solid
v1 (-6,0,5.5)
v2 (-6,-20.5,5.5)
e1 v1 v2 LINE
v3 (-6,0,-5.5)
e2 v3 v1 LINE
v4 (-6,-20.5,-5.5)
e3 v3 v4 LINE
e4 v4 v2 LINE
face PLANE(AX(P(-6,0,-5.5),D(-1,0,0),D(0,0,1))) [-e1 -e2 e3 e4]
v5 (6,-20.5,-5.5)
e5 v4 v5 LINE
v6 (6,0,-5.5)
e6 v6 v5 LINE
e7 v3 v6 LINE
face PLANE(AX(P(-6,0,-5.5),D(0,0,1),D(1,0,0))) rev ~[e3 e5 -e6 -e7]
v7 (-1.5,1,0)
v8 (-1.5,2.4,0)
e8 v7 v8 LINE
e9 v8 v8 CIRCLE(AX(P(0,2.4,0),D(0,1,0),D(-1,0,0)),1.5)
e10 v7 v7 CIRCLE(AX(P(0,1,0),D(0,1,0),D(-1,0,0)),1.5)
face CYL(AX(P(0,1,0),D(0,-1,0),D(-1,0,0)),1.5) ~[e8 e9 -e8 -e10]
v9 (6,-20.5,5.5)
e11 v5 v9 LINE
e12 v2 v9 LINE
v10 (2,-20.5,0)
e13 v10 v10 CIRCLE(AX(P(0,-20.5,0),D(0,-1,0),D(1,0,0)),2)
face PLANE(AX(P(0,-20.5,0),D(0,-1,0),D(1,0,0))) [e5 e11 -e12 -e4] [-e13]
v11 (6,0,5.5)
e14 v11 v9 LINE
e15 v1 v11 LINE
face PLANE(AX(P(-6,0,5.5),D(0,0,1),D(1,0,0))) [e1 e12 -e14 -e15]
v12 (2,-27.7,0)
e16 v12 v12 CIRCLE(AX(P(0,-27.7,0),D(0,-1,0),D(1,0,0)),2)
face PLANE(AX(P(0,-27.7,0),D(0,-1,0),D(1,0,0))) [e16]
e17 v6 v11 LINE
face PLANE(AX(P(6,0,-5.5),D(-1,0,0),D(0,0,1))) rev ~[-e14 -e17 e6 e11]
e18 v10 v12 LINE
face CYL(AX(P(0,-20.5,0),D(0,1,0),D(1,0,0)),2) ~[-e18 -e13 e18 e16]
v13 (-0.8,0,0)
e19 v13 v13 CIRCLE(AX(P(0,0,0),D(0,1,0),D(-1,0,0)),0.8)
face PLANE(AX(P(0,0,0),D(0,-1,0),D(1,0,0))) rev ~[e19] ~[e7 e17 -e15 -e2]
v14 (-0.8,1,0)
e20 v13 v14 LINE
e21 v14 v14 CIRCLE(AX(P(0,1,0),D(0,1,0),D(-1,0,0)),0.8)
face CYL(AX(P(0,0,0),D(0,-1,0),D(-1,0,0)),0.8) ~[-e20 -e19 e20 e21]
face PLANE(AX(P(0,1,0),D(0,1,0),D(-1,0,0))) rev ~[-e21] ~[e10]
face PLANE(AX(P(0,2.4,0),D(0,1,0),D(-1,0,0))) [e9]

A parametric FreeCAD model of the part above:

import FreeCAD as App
import Part
import Sketcher

doc = App.newDocument("Part")
params = doc.addObject("Spreadsheet::Sheet", "Params")
for row, (alias, value) in enumerate([
    ("sketch1_width", "12 mm"),
    ("sketch1_height", "11 mm"),
    ("pad1_length", "20.5 mm"),
    ("sketch2_diameter", "4 mm"),
    ("pad2_length", "7.2 mm"),
    ("sketch3_diameter", "1.6 mm"),
    ("pad3_length", "1 mm"),
    ("sketch4_diameter", "3 mm"),
    ("pad4_length", "1.4 mm"),
], start=1):
    params.set(f"A{row}", alias)
    params.set(f"B{row}", "=" + value)
    params.setAlias(f"B{row}", alias)

body = doc.addObject("PartDesign::Body", "Body")

# Sketch on XZ plane
sketch1 = body.newObject("Sketcher::SketchObject", "Sketch")
sketch1.AttachmentSupport = (doc.getObject("XZ_Plane"), [""])
sketch1.MapMode = "FlatFace"
sketch1.addGeometry(Part.LineSegment(App.Vector(-6, 6, 0), App.Vector(-6, -6, 0)), False)
sketch1.addGeometry(Part.LineSegment(App.Vector(-6, -6, 0), App.Vector(6, -6, 0)), False)
sketch1.addGeometry(Part.LineSegment(App.Vector(6, -6, 0), App.Vector(6, 6, 0)), False)
sketch1.addGeometry(Part.LineSegment(App.Vector(6, 6, 0), App.Vector(-6, 6, 0)), False)
sketch1.addConstraint(Sketcher.Constraint("Coincident", 0, 2, 1, 1))
sketch1.addConstraint(Sketcher.Constraint("Coincident", 1, 2, 2, 1))
sketch1.addConstraint(Sketcher.Constraint("Coincident", 2, 2, 3, 1))
sketch1.addConstraint(Sketcher.Constraint("Coincident", 3, 2, 0, 1))
sketch1.addConstraint(Sketcher.Constraint("Vertical", 0))
sketch1.addConstraint(Sketcher.Constraint("Horizontal", 1))
sketch1.addConstraint(Sketcher.Constraint("Vertical", 2))
sketch1.addConstraint(Sketcher.Constraint("Horizontal", 3))
sketch1.addConstraint(Sketcher.Constraint("Symmetric", 0, 2, 2, 2, -1, 1))
sketch1.addConstraint(Sketcher.Constraint("DistanceX", 1, 1, 1, 2, 12.0))
sketch1.addConstraint(Sketcher.Constraint("DistanceY", 0, 2, 0, 1, 11.0))
sketch1.setExpression("Constraints[9]", "Params.sketch1_width")
sketch1.setExpression("Constraints[10]", "Params.sketch1_height")
pad1 = body.newObject("PartDesign::Pad", "Pad")
pad1.Profile = sketch1
pad1.setExpression("Length", "Params.pad1_length")

# Sketch on XZ plane
sketch2 = body.newObject("Sketcher::SketchObject", "Sketch001")
sketch2.AttachmentSupport = (doc.getObject("XZ_Plane"), [""])
sketch2.MapMode = "FlatFace"
sketch2.AttachmentOffset = App.Placement(App.Vector(0, 0, 20.5), App.Rotation())
sketch2.addGeometry(Part.Circle(App.Vector(0, 0, 0), App.Vector(0, 0, 1), 2), False)
sketch2.addConstraint(Sketcher.Constraint("Coincident", 0, 3, -1, 1))
sketch2.addConstraint(Sketcher.Constraint("Diameter", 0, 4.0))
sketch2.setExpression("Constraints[1]", "Params.sketch2_diameter")
pad2 = body.newObject("PartDesign::Pad", "Pad001")
pad2.Profile = sketch2
pad2.setExpression("Length", "Params.pad2_length")

# Sketch on XZ plane
sketch3 = body.newObject("Sketcher::SketchObject", "Sketch002")
sketch3.AttachmentSupport = (doc.getObject("XZ_Plane"), [""])
sketch3.MapMode = "FlatFace"
sketch3.addGeometry(Part.Circle(App.Vector(0, 0, 0), App.Vector(0, 0, 1), 0.8), False)
sketch3.addConstraint(Sketcher.Constraint("Coincident", 0, 3, -1, 1))
sketch3.addConstraint(Sketcher.Constraint("Diameter", 0, 1.6))
sketch3.setExpression("Constraints[1]", "Params.sketch3_diameter")
pad3 = body.newObject("PartDesign::Pad", "Pad002")
pad3.Profile = sketch3
pad3.setExpression("Length", "Params.pad3_length")
pad3.Reversed = True

# Sketch on XZ plane
sketch4 = body.newObject("Sketcher::SketchObject", "Sketch003")
sketch4.AttachmentSupport = (doc.getObject("XZ_Plane"), [""])
sketch4.MapMode = "FlatFace"
sketch4.AttachmentOffset = App.Placement(App.Vector(0, 0, -1), App.Rotation())
sketch4.addGeometry(Part.Circle(App.Vector(0, 0, 0), App.Vector(0, 0, 1), 1.5), False)
sketch4.addConstraint(Sketcher.Constraint("Coincident", 0, 3, -1, 1))
sketch4.addConstraint(Sketcher.Constraint("Diameter", 0, 3.0))
sketch4.setExpression("Constraints[1]", "Params.sketch4_diameter")
pad4 = body.newObject("PartDesign::Pad", "Pad003")
pad4.Profile = sketch4
pad4.setExpression("Length", "Params.pad4_length")
pad4.Reversed = True

doc.recompute()
